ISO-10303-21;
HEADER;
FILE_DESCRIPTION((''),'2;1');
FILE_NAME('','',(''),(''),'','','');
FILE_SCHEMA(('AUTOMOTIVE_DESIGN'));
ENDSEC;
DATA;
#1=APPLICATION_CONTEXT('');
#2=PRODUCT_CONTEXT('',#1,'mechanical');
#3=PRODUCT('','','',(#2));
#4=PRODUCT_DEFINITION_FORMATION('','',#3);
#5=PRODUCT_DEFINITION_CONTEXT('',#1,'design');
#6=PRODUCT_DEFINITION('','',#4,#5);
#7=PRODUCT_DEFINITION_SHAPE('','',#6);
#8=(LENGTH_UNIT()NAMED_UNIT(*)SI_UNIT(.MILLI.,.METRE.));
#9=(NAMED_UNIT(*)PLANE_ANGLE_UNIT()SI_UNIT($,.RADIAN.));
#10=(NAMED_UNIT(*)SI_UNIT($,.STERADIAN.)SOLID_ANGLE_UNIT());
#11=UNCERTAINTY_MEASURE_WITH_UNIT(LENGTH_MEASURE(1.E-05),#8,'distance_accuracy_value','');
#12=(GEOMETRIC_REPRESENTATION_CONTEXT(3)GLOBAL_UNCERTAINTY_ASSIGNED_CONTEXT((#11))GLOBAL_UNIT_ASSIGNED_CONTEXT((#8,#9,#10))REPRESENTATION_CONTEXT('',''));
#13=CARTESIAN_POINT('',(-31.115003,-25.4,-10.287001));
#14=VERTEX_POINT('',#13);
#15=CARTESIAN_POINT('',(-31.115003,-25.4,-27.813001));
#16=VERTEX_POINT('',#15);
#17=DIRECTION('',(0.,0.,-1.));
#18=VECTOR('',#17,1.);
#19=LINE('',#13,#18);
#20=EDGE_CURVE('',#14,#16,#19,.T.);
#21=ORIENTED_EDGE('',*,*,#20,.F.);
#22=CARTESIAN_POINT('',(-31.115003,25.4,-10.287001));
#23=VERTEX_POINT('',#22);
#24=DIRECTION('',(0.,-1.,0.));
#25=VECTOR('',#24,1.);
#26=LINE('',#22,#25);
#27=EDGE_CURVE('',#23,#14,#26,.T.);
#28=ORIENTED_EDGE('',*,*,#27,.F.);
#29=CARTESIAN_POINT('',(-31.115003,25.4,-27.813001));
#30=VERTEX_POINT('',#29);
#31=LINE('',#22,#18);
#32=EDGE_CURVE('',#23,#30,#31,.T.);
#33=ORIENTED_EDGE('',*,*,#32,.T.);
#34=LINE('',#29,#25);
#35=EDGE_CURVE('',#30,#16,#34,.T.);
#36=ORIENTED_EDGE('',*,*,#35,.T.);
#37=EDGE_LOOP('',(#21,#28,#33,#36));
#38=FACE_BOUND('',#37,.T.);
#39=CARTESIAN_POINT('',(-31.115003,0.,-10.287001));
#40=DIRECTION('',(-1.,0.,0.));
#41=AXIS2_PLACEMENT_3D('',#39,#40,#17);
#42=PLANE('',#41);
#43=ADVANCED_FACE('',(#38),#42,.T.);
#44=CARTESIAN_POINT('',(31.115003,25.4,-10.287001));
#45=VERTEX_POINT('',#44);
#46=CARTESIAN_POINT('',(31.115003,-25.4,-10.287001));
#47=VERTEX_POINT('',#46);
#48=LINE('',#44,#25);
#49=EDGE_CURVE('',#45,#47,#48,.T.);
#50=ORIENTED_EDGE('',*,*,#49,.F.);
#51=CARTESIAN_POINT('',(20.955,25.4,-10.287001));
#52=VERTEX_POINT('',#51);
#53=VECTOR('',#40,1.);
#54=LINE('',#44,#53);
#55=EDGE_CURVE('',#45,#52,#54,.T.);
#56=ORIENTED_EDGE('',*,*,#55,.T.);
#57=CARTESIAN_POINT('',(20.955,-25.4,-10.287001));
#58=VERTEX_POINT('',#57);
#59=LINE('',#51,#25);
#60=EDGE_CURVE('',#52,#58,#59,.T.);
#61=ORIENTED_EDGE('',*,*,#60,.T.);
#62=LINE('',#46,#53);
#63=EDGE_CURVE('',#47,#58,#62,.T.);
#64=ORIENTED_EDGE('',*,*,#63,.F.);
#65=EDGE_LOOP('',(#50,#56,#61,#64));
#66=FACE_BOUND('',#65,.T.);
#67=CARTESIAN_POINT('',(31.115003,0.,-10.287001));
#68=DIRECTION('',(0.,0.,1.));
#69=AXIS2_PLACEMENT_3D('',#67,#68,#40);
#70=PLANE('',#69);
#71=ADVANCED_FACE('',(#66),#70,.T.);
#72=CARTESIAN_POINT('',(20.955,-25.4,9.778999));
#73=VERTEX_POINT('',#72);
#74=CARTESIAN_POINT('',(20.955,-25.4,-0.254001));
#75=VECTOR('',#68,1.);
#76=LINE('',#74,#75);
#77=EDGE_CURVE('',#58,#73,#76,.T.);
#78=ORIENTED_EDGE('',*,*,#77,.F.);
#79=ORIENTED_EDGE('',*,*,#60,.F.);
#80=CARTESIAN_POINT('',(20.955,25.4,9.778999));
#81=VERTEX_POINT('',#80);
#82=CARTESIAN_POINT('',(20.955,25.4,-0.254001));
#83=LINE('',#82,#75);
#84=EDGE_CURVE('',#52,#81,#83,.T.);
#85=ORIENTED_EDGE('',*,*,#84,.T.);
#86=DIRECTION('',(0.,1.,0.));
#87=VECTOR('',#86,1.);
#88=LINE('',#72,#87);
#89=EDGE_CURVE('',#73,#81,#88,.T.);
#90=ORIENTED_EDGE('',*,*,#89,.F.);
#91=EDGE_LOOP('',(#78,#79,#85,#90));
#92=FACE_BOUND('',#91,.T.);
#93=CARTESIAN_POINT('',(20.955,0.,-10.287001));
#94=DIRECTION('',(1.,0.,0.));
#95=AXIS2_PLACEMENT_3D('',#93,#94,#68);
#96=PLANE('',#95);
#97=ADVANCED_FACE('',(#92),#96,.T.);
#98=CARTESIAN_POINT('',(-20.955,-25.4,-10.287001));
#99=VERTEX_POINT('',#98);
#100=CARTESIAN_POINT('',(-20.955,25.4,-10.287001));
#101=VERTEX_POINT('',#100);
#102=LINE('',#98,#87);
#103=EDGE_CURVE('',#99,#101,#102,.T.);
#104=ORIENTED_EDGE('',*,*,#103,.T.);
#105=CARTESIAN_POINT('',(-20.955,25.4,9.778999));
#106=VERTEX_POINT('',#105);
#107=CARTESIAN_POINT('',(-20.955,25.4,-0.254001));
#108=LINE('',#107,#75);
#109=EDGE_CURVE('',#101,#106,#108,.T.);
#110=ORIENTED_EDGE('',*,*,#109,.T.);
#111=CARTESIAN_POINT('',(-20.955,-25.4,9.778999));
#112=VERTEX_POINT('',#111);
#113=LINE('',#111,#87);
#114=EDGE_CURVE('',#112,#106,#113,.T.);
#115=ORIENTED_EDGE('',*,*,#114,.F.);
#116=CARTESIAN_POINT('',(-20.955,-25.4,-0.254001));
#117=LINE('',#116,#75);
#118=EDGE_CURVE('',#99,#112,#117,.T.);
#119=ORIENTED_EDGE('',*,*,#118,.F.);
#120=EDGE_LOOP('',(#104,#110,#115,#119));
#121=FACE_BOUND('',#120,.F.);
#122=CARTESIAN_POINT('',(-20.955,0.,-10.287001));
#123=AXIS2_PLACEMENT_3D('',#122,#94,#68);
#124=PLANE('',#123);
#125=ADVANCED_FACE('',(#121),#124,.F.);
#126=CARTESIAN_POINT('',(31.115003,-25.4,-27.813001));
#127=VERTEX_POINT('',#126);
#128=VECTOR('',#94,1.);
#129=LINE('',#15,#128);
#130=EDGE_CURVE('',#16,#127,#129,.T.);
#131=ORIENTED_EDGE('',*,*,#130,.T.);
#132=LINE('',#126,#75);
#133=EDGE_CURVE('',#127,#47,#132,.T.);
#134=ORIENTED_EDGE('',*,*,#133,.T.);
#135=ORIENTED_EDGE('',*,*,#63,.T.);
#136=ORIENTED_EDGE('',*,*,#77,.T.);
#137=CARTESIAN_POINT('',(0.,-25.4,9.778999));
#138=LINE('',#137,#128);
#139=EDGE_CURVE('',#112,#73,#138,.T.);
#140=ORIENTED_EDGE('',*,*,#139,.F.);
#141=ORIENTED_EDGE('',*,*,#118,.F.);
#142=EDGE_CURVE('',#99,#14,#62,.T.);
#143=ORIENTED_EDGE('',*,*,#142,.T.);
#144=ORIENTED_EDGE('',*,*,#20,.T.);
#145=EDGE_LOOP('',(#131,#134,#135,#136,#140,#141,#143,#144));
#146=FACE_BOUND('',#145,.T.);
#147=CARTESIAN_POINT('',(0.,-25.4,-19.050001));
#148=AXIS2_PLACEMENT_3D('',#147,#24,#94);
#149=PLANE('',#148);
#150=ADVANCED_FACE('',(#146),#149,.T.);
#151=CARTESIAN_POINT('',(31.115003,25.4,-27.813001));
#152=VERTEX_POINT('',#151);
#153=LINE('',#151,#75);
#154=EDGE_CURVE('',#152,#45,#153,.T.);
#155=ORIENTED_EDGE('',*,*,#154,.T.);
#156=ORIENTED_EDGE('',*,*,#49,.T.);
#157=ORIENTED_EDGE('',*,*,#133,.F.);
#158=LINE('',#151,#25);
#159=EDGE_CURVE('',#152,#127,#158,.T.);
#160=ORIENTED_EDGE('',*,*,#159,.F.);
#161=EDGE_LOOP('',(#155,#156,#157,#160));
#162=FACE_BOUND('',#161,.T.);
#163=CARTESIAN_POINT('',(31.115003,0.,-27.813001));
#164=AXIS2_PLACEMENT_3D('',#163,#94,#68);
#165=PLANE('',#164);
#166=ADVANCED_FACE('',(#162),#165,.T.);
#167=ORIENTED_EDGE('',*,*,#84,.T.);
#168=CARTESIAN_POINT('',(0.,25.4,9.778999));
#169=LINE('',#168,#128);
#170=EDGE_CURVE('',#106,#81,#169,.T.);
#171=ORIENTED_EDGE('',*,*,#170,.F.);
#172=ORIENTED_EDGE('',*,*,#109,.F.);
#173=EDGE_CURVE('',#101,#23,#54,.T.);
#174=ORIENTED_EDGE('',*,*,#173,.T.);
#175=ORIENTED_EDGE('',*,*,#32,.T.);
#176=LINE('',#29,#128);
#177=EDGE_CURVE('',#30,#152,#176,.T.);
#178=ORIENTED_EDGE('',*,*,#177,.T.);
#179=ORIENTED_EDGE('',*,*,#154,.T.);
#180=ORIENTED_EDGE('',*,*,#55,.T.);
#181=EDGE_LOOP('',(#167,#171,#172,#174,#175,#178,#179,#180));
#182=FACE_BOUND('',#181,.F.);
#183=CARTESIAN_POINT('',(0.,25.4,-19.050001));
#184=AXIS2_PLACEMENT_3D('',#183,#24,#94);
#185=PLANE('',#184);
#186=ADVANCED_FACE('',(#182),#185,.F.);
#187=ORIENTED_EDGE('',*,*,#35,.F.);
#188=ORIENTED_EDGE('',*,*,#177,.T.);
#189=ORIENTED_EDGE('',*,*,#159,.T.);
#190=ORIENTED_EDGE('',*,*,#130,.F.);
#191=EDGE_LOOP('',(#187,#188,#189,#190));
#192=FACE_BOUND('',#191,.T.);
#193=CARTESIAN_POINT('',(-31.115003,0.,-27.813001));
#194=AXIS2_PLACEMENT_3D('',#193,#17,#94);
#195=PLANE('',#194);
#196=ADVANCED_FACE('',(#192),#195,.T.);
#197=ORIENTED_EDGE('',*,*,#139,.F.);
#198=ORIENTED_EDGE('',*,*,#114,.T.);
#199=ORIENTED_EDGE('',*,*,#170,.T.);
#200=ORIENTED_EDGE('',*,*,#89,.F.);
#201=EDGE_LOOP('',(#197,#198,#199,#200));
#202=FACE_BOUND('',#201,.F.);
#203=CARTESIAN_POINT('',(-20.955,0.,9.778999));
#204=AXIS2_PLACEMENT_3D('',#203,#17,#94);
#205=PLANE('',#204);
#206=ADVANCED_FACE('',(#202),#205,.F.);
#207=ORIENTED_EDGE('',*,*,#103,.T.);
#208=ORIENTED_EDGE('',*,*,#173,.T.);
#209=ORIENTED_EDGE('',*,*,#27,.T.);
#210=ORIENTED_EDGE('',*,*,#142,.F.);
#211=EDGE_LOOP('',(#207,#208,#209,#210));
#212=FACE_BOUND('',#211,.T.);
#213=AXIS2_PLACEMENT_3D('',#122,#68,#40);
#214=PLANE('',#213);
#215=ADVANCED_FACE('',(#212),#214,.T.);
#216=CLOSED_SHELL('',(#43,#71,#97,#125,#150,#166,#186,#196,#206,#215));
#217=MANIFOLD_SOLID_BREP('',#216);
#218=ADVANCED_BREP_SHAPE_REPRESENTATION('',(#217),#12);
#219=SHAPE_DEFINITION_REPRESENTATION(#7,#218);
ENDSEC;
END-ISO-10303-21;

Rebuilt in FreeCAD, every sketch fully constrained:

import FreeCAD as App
import Part
import Sketcher

V = App.Vector
Q = App.Units.Quantity

doc = App.newDocument("Part")
params = doc.addObject("Spreadsheet::Sheet", "Params")
for row, (alias, value) in enumerate([
    ("sketch1_width", "0.4000001 in"),
    ("sketch1_width2", "1.65 in"),
    ("sketch1_height", "0.69 in"),
    ("sketch1_height2", "0.79 in"),
    ("pad1_length", "1 in"),
    ("pad1_length2", "1 in"),
], start=1):
    params.set(f"A{row}", alias)
    params.set(f"B{row}", "=" + value)
    params.setAlias(f"B{row}", alias)

body = doc.addObject("PartDesign::Body", "Body")

# Sketch on XZ plane
sketch1 = doc.addObject("Sketcher::SketchObject", "Sketch")
body.addObject(sketch1)
sketch1.AttachmentSupport = (doc.XZ_Plane, [""])
sketch1.MapMode = "FlatFace"
sketch1.addGeometry([
    Part.LineSegment(V(-21, -10, 0), V(-31, -10, 0)),  # 0
    Part.LineSegment(V(-31, -10, 0), V(-31, -28, 0)),  # 1
    Part.LineSegment(V(-31, -28, 0), V(31, -28, 0)),  # 2
    Part.LineSegment(V(31, -28, 0), V(31, -10, 0)),  # 3
    Part.LineSegment(V(31, -10, 0), V(21, -10, 0)),  # 4
    Part.LineSegment(V(21, -10, 0), V(21, 10, 0)),  # 5
    Part.LineSegment(V(21, 10, 0), V(-21, 10, 0)),  # 6
    Part.LineSegment(V(-21, 10, 0), V(-21, -10, 0)),  # 7
], False)
sketch1.addConstraint([
    Sketcher.Constraint("Coincident", 0, 2, 1, 1),
    Sketcher.Constraint("Coincident", 1, 2, 2, 1),
    Sketcher.Constraint("Coincident", 2, 2, 3, 1),
    Sketcher.Constraint("Coincident", 3, 2, 4, 1),
    Sketcher.Constraint("Coincident", 4, 2, 5, 1),
    Sketcher.Constraint("Coincident", 5, 2, 6, 1),
    Sketcher.Constraint("Coincident", 6, 2, 7, 1),
    Sketcher.Constraint("Coincident", 7, 2, 0, 1),
    Sketcher.Constraint("Horizontal", 0),
    Sketcher.Constraint("Vertical", 1),
    Sketcher.Constraint("Horizontal", 2),
    Sketcher.Constraint("Vertical", 3),
    Sketcher.Constraint("Horizontal", 4),
    Sketcher.Constraint("Vertical", 5),
    Sketcher.Constraint("Horizontal", 6),
    Sketcher.Constraint("Vertical", 7),
    Sketcher.Constraint("Symmetric", 0, 2, 3, 2, -2),
    Sketcher.Constraint("Equal", 0, 4),
    Sketcher.Constraint("DistanceX", 0, 2, 0, 1, Q("0.4000001 in")),
    Sketcher.Constraint("DistanceX", 6, 2, 6, 1, Q("1.65 in")),
    Sketcher.Constraint("DistanceY", 1, 2, 1, 1, Q("0.69 in")),
    Sketcher.Constraint("DistanceY", 5, 1, 5, 2, Q("0.79 in")),
    Sketcher.Constraint("DistanceY", 0, 2, -1, 1, Q("0.405 in")),
])
sketch1.setExpression("Constraints[18]", "Params.sketch1_width")
sketch1.setExpression("Constraints[19]", "Params.sketch1_width2")
sketch1.setExpression("Constraints[20]", "Params.sketch1_height")
sketch1.setExpression("Constraints[21]", "Params.sketch1_height2")
pad1 = doc.addObject("PartDesign::Pad", "Pad")
body.addObject(pad1)
pad1.Profile = sketch1
pad1.Type = "TwoLengths"
pad1.setExpression("Length", "Params.pad1_length")
pad1.setExpression("Length2", "Params.pad1_length2")

doc.recompute()
